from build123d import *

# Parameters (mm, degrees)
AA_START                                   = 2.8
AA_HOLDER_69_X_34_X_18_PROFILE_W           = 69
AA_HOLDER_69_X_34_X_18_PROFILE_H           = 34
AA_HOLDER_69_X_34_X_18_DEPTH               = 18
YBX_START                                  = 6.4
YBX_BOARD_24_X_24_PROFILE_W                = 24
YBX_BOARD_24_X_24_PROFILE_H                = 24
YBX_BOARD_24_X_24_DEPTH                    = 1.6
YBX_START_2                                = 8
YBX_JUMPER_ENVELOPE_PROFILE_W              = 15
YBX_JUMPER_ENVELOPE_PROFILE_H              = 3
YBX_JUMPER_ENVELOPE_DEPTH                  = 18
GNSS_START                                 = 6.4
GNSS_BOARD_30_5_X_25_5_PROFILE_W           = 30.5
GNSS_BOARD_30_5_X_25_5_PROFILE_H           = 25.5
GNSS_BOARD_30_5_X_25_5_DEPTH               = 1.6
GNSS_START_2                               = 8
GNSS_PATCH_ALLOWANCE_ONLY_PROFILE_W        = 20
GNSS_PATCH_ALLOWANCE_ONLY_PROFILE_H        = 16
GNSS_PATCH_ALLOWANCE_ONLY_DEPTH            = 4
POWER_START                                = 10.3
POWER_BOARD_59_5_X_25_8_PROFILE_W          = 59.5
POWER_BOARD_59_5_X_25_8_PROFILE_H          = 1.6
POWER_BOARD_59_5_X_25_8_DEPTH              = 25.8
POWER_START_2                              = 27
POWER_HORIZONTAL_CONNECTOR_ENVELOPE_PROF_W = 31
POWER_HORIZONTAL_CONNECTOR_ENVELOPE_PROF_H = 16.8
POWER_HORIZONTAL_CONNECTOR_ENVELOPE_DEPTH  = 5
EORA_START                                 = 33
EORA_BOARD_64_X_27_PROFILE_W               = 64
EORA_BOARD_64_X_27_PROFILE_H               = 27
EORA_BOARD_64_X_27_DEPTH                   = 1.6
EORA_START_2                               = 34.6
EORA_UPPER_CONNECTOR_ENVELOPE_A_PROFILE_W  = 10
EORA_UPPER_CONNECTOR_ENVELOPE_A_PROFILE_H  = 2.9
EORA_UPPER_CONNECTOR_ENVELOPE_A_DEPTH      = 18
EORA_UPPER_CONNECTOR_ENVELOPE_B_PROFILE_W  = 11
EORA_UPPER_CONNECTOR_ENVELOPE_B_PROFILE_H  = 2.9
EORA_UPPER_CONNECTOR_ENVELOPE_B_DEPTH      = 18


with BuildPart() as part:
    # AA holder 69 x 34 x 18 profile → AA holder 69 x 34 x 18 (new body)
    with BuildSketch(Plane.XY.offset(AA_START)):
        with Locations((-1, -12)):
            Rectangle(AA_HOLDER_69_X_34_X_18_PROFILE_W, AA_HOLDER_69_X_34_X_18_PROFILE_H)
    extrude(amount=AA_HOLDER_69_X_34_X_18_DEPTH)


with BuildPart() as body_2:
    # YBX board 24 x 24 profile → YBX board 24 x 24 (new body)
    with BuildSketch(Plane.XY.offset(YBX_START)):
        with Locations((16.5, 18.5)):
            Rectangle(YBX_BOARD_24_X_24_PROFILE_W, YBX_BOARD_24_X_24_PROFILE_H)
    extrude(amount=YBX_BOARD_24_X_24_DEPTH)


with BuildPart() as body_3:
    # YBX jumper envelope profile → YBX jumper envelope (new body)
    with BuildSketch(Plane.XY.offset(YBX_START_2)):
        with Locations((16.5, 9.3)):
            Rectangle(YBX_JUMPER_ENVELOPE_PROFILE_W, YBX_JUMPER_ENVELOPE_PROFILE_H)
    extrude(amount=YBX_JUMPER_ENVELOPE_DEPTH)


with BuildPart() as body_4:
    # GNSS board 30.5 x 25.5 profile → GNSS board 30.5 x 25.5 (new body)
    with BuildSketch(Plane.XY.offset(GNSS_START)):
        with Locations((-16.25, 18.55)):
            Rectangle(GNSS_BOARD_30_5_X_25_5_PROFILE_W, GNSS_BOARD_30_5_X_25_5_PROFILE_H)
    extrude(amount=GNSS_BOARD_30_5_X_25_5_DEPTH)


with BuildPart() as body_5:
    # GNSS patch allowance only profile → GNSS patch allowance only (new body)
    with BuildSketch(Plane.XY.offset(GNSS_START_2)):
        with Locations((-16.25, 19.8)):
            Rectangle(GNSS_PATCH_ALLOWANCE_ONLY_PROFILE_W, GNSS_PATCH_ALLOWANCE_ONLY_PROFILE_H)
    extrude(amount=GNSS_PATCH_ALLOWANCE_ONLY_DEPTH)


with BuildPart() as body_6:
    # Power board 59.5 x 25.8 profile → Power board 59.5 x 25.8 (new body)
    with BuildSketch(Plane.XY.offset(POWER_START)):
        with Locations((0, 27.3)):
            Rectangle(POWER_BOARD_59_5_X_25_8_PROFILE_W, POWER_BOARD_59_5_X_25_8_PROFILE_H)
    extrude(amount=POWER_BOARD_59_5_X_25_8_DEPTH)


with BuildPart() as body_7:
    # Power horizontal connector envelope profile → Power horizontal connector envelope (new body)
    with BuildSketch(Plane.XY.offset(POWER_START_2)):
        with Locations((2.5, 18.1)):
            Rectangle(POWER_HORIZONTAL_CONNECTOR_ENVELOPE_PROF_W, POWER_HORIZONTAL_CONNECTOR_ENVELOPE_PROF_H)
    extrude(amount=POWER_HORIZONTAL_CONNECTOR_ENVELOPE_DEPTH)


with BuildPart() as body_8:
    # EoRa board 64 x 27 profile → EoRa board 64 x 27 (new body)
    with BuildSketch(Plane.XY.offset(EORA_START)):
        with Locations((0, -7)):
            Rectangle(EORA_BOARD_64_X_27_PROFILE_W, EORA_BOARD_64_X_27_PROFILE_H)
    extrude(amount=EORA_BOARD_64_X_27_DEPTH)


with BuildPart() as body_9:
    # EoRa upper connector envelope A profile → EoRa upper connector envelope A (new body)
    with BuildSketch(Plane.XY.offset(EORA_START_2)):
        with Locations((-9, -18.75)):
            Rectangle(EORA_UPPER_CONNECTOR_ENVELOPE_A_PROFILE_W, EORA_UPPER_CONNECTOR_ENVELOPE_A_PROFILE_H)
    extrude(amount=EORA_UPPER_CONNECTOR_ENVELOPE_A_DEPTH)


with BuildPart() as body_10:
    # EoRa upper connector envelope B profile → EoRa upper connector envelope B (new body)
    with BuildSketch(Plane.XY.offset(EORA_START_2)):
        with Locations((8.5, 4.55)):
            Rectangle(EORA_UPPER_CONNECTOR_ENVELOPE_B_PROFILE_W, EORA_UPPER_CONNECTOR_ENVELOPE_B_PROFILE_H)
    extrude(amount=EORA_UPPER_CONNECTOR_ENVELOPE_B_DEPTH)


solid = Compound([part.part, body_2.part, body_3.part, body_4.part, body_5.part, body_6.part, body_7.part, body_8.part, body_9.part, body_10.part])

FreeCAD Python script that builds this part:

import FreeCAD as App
import Part
import Sketcher
Q = App.Units.Quantity

doc = App.newDocument("Part")
body = doc.addObject("PartDesign::Body", "Body")

# Sketch on XY plane
sketch1 = body.newObject("Sketcher::SketchObject", "Sketch")
sketch1.AttachmentSupport = (doc.getObject("XY_Plane"), [""])
sketch1.MapMode = "FlatFace"
sketch1.AttachmentOffset = App.Placement(App.Vector(0, 0, 2.8), App.Rotation())
sketch1.addGeometry(Part.LineSegment(App.Vector(-36, 5, 0), App.Vector(-36, -29, 0)), False)
sketch1.addGeometry(Part.LineSegment(App.Vector(-36, -29, 0), App.Vector(34, -29, 0)), False)
sketch1.addGeometry(Part.LineSegment(App.Vector(34, -29, 0), App.Vector(34, 5, 0)), False)
sketch1.addGeometry(Part.LineSegment(App.Vector(34, 5, 0), App.Vector(-36, 5, 0)), False)
sketch1.addConstraint(Sketcher.Constraint("Coincident", 0, 2, 1, 1))
sketch1.addConstraint(Sketcher.Constraint("Coincident", 1, 2, 2, 1))
sketch1.addConstraint(Sketcher.Constraint("Coincident", 2, 2, 3, 1))
sketch1.addConstraint(Sketcher.Constraint("Coincident", 3, 2, 0, 1))
sketch1.addConstraint(Sketcher.Constraint("Vertical", 0))
sketch1.addConstraint(Sketcher.Constraint("Horizontal", 1))
sketch1.addConstraint(Sketcher.Constraint("Vertical", 2))
sketch1.addConstraint(Sketcher.Constraint("Horizontal", 3))
sketch1.addConstraint(Sketcher.Constraint("DistanceX", 1, 1, 1, 2, Q("69 mm")))
sketch1.addConstraint(Sketcher.Constraint("DistanceY", 0, 2, 0, 1, Q("34 mm")))
sketch1.addConstraint(Sketcher.Constraint("DistanceY", 0, 2, -1, 1, Q("29 mm")))
sketch1.addConstraint(Sketcher.Constraint("DistanceX", 0, 2, -1, 1, Q("35.5 mm")))
pad1 = body.newObject("PartDesign::Pad", "Pad")
pad1.Profile = sketch1
pad1.Length = 18
body2 = doc.addObject("PartDesign::Body", "Body001")

# Sketch on XY plane
sketch2 = body2.newObject("Sketcher::SketchObject", "Sketch001")
sketch2.AttachmentSupport = (doc.getObject("XY_Plane001"), [""])
sketch2.MapMode = "FlatFace"
sketch2.AttachmentOffset = App.Placement(App.Vector(0, 0, 6.4), App.Rotation())
sketch2.addGeometry(Part.LineSegment(App.Vector(4, 30, 0), App.Vector(4, 6, 0)), False)
sketch2.addGeometry(Part.LineSegment(App.Vector(4, 6, 0), App.Vector(28, 6, 0)), False)
sketch2.addGeometry(Part.LineSegment(App.Vector(28, 6, 0), App.Vector(28, 30, 0)), False)
sketch2.addGeometry(Part.LineSegment(App.Vector(28, 30, 0), App.Vector(4, 30, 0)), False)
sketch2.addConstraint(Sketcher.Constraint("Coincident", 0, 2, 1, 1))
sketch2.addConstraint(Sketcher.Constraint("Coincident", 1, 2, 2, 1))
sketch2.addConstraint(Sketcher.Constraint("Coincident", 2, 2, 3, 1))
sketch2.addConstraint(Sketcher.Constraint("Coincident", 3, 2, 0, 1))
sketch2.addConstraint(Sketcher.Constraint("Vertical", 0))
sketch2.addConstraint(Sketcher.Constraint("Horizontal", 1))
sketch2.addConstraint(Sketcher.Constraint("Vertical", 2))
sketch2.addConstraint(Sketcher.Constraint("Horizontal", 3))
sketch2.addConstraint(Sketcher.Constraint("Equal", 3, 0))
sketch2.addConstraint(Sketcher.Constraint("DistanceX", 1, 1, 1, 2, Q("24 mm")))
sketch2.addConstraint(Sketcher.Constraint("DistanceX", -1, 1, 0, 2, Q("4.5 mm")))
sketch2.addConstraint(Sketcher.Constraint("DistanceY", -1, 1, 0, 2, Q("6.5 mm")))
pad2 = body2.newObject("PartDesign::Pad", "Pad001")
pad2.Profile = sketch2
pad2.Length = 1.6
body3 = doc.addObject("PartDesign::Body", "Body002")

# Sketch on XY plane
sketch3 = body3.newObject("Sketcher::SketchObject", "Sketch002")
sketch3.AttachmentSupport = (doc.getObject("XY_Plane002"), [""])
sketch3.MapMode = "FlatFace"
sketch3.AttachmentOffset = App.Placement(App.Vector(0, 0, 8), App.Rotation())
sketch3.addGeometry(Part.LineSegment(App.Vector(9, 10.8, 0), App.Vector(9, 7.8, 0)), False)
sketch3.addGeometry(Part.LineSegment(App.Vector(9, 7.8, 0), App.Vector(24, 7.8, 0)), False)
sketch3.addGeometry(Part.LineSegment(App.Vector(24, 7.8, 0), App.Vector(24, 10.8, 0)), False)
sketch3.addGeometry(Part.LineSegment(App.Vector(24, 10.8, 0), App.Vector(9, 10.8, 0)), False)
sketch3.addConstraint(Sketcher.Constraint("Coincident", 0, 2, 1, 1))
sketch3.addConstraint(Sketcher.Constraint("Coincident", 1, 2, 2, 1))
sketch3.addConstraint(Sketcher.Constraint("Coincident", 2, 2, 3, 1))
sketch3.addConstraint(Sketcher.Constraint("Coincident", 3, 2, 0, 1))
sketch3.addConstraint(Sketcher.Constraint("Vertical", 0))
sketch3.addConstraint(Sketcher.Constraint("Horizontal", 1))
sketch3.addConstraint(Sketcher.Constraint("Vertical", 2))
sketch3.addConstraint(Sketcher.Constraint("Horizontal", 3))
sketch3.addConstraint(Sketcher.Constraint("DistanceX", 1, 1, 1, 2, Q("15 mm")))
sketch3.addConstraint(Sketcher.Constraint("DistanceY", 0, 2, 0, 1, Q("3 mm")))
sketch3.addConstraint(Sketcher.Constraint("DistanceX", -1, 1, 0, 2, Q("9 mm")))
sketch3.addConstraint(Sketcher.Constraint("DistanceY", -1, 1, 0, 2, Q("7.8 mm")))
pad3 = body3.newObject("PartDesign::Pad", "Pad002")
pad3.Profile = sketch3
pad3.Length = 18
body4 = doc.addObject("PartDesign::Body", "Body003")

# Sketch on XY plane
sketch4 = body4.newObject("Sketcher::SketchObject", "Sketch003")
sketch4.AttachmentSupport = (doc.getObject("XY_Plane003"), [""])
sketch4.MapMode = "FlatFace"
sketch4.AttachmentOffset = App.Placement(App.Vector(0, 0, 6.4), App.Rotation())
sketch4.addGeometry(Part.LineSegment(App.Vector(-32, 31, 0), App.Vector(-32, 6, 0)), False)
sketch4.addGeometry(Part.LineSegment(App.Vector(-32, 6, 0), App.Vector(-1, 6, 0)), False)
sketch4.addGeometry(Part.LineSegment(App.Vector(-1, 6, 0), App.Vector(-1, 31, 0)), False)
sketch4.addGeometry(Part.LineSegment(App.Vector(-1, 31, 0), App.Vector(-32, 31, 0)), False)
sketch4.addConstraint(Sketcher.Constraint("Coincident", 0, 2, 1, 1))
sketch4.addConstraint(Sketcher.Constraint("Coincident", 1, 2, 2, 1))
sketch4.addConstraint(Sketcher.Constraint("Coincident", 2, 2, 3, 1))
sketch4.addConstraint(Sketcher.Constraint("Coincident", 3, 2, 0, 1))
sketch4.addConstraint(Sketcher.Constraint("Vertical", 0))
sketch4.addConstraint(Sketcher.Constraint("Horizontal", 1))
sketch4.addConstraint(Sketcher.Constraint("Vertical", 2))
sketch4.addConstraint(Sketcher.Constraint("Horizontal", 3))
sketch4.addConstraint(Sketcher.Constraint("DistanceX", 1, 1, 1, 2, Q("30.5 mm")))
sketch4.addConstraint(Sketcher.Constraint("DistanceY", 0, 2, 0, 1, Q("25.5 mm")))
sketch4.addConstraint(Sketcher.Constraint("DistanceX", 1, 2, -1, 1, Q("1 mm")))
sketch4.addConstraint(Sketcher.Constraint("DistanceY", -1, 1, 0, 2, Q("5.8 mm")))
pad4 = body4.newObject("PartDesign::Pad", "Pad003")
pad4.Profile = sketch4
pad4.Length = 1.6
body5 = doc.addObject("PartDesign::Body", "Body004")

# Sketch on XY plane
sketch5 = body5.newObject("Sketcher::SketchObject", "Sketch004")
sketch5.AttachmentSupport = (doc.getObject("XY_Plane004"), [""])
sketch5.MapMode = "FlatFace"
sketch5.AttachmentOffset = App.Placement(App.Vector(0, 0, 8), App.Rotation())
sketch5.addGeometry(Part.LineSegment(App.Vector(-26, 28, 0), App.Vector(-26, 12, 0)), False)
sketch5.addGeometry(Part.LineSegment(App.Vector(-26, 12, 0), App.Vector(-6, 12, 0)), False)
sketch5.addGeometry(Part.LineSegment(App.Vector(-6, 12, 0), App.Vector(-6, 28, 0)), False)
sketch5.addGeometry(Part.LineSegment(App.Vector(-6, 28, 0), App.Vector(-26, 28, 0)), False)
sketch5.addConstraint(Sketcher.Constraint("Coincident", 0, 2, 1, 1))
sketch5.addConstraint(Sketcher.Constraint("Coincident", 1, 2, 2, 1))
sketch5.addConstraint(Sketcher.Constraint("Coincident", 2, 2, 3, 1))
sketch5.addConstraint(Sketcher.Constraint("Coincident", 3, 2, 0, 1))
sketch5.addConstraint(Sketcher.Constraint("Vertical", 0))
sketch5.addConstraint(Sketcher.Constraint("Horizontal", 1))
sketch5.addConstraint(Sketcher.Constraint("Vertical", 2))
sketch5.addConstraint(Sketcher.Constraint("Horizontal", 3))
sketch5.addConstraint(Sketcher.Constraint("DistanceX", 1, 1, 1, 2, Q("20 mm")))
sketch5.addConstraint(Sketcher.Constraint("DistanceY", 0, 2, 0, 1, Q("16 mm")))
sketch5.addConstraint(Sketcher.Constraint("DistanceY", -1, 1, 0, 2, Q("11.8 mm")))
sketch5.addConstraint(Sketcher.Constraint("DistanceX", 0, 2, -1, 1, Q("26.25 mm")))
pad5 = body5.newObject("PartDesign::Pad", "Pad004")
pad5.Profile = sketch5
pad5.Length = 4
body6 = doc.addObject("PartDesign::Body", "Body005")

# Sketch on XY plane
sketch6 = body6.newObject("Sketcher::SketchObject", "Sketch005")
sketch6.AttachmentSupport = (doc.getObject("XY_Plane005"), [""])
sketch6.MapMode = "FlatFace"
sketch6.AttachmentOffset = App.Placement(App.Vector(0, 0, 10.3), App.Rotation())
sketch6.addGeometry(Part.LineSegment(App.Vector(-29.8, 28.1, 0), App.Vector(-29.8, 26.5, 0)), False)
sketch6.addGeometry(Part.LineSegment(App.Vector(-29.8, 26.5, 0), App.Vector(29.8, 26.5, 0)), False)
sketch6.addGeometry(Part.LineSegment(App.Vector(29.8, 26.5, 0), App.Vector(29.8, 28.1, 0)), False)
sketch6.addGeometry(Part.LineSegment(App.Vector(29.8, 28.1, 0), App.Vector(-29.8, 28.1, 0)), False)
sketch6.addConstraint(Sketcher.Constraint("Coincident", 0, 2, 1, 1))
sketch6.addConstraint(Sketcher.Constraint("Coincident", 1, 2, 2, 1))
sketch6.addConstraint(Sketcher.Constraint("Coincident", 2, 2, 3, 1))
sketch6.addConstraint(Sketcher.Constraint("Coincident", 3, 2, 0, 1))
sketch6.addConstraint(Sketcher.Constraint("Vertical", 0))
sketch6.addConstraint(Sketcher.Constraint("Horizontal", 1))
sketch6.addConstraint(Sketcher.Constraint("Vertical", 2))
sketch6.addConstraint(Sketcher.Constraint("Horizontal", 3))
sketch6.addConstraint(Sketcher.Constraint("DistanceX", 1, 1, 1, 2, Q("59.5 mm")))
sketch6.addConstraint(Sketcher.Constraint("DistanceY", 0, 2, 0, 1, Q("1.6 mm")))
sketch6.addConstraint(Sketcher.Constraint("DistanceY", -1, 1, 0, 2, Q("26.5 mm")))
sketch6.addConstraint(Sketcher.Constraint("DistanceX", 0, 2, -1, 1, Q("29.75 mm")))
pad6 = body6.newObject("PartDesign::Pad", "Pad005")
pad6.Profile = sketch6
pad6.Length = 25.8
body7 = doc.addObject("PartDesign::Body", "Body006")

# Sketch on XY plane
sketch7 = body7.newObject("Sketcher::SketchObject", "Sketch006")
sketch7.AttachmentSupport = (doc.getObject("XY_Plane006"), [""])
sketch7.MapMode = "FlatFace"
sketch7.AttachmentOffset = App.Placement(App.Vector(0, 0, 27), App.Rotation())
sketch7.addGeometry(Part.LineSegment(App.Vector(-13, 26, 0), App.Vector(-13, 10, 0)), False)
sketch7.addGeometry(Part.LineSegment(App.Vector(-13, 10, 0), App.Vector(18, 10, 0)), False)
sketch7.addGeometry(Part.LineSegment(App.Vector(18, 10, 0), App.Vector(18, 26, 0)), False)
sketch7.addGeometry(Part.LineSegment(App.Vector(18, 26, 0), App.Vector(-13, 26, 0)), False)
sketch7.addConstraint(Sketcher.Constraint("Coincident", 0, 2, 1, 1))
sketch7.addConstraint(Sketcher.Constraint("Coincident", 1, 2, 2, 1))
sketch7.addConstraint(Sketcher.Constraint("Coincident", 2, 2, 3, 1))
sketch7.addConstraint(Sketcher.Constraint("Coincident", 3, 2, 0, 1))
sketch7.addConstraint(Sketcher.Constraint("Vertical", 0))
sketch7.addConstraint(Sketcher.Constraint("Horizontal", 1))
sketch7.addConstraint(Sketcher.Constraint("Vertical", 2))
sketch7.addConstraint(Sketcher.Constraint("Horizontal", 3))
sketch7.addConstraint(Sketcher.Constraint("DistanceX", 1, 1, 1, 2, Q("31 mm")))
sketch7.addConstraint(Sketcher.Constraint("DistanceY", 0, 2, 0, 1, Q("16.8 mm")))
sketch7.addConstraint(Sketcher.Constraint("DistanceX", 0, 2, -1, 1, Q("13 mm")))
sketch7.addConstraint(Sketcher.Constraint("DistanceY", -1, 1, 0, 2, Q("9.7 mm")))
pad7 = body7.newObject("PartDesign::Pad", "Pad006")
pad7.Profile = sketch7
pad7.Length = 5
body8 = doc.addObject("PartDesign::Body", "Body007")

# Sketch on XY plane
sketch8 = body8.newObject("Sketcher::SketchObject", "Sketch007")
sketch8.AttachmentSupport = (doc.getObject("XY_Plane007"), [""])
sketch8.MapMode = "FlatFace"
sketch8.AttachmentOffset = App.Placement(App.Vector(0, 0, 33), App.Rotation())
sketch8.addGeometry(Part.LineSegment(App.Vector(-32, 6, 0), App.Vector(-32, -20, 0)), False)
sketch8.addGeometry(Part.LineSegment(App.Vector(-32, -20, 0), App.Vector(32, -20, 0)), False)
sketch8.addGeometry(Part.LineSegment(App.Vector(32, -20, 0), App.Vector(32, 6, 0)), False)
sketch8.addGeometry(Part.LineSegment(App.Vector(32, 6, 0), App.Vector(-32, 6, 0)), False)
sketch8.addConstraint(Sketcher.Constraint("Coincident", 0, 2, 1, 1))
sketch8.addConstraint(Sketcher.Constraint("Coincident", 1, 2, 2, 1))
sketch8.addConstraint(Sketcher.Constraint("Coincident", 2, 2, 3, 1))
sketch8.addConstraint(Sketcher.Constraint("Coincident", 3, 2, 0, 1))
sketch8.addConstraint(Sketcher.Constraint("Vertical", 0))
sketch8.addConstraint(Sketcher.Constraint("Horizontal", 1))
sketch8.addConstraint(Sketcher.Constraint("Vertical", 2))
sketch8.addConstraint(Sketcher.Constraint("Horizontal", 3))
sketch8.addConstraint(Sketcher.Constraint("DistanceX", 1, 1, 1, 2, Q("64 mm")))
sketch8.addConstraint(Sketcher.Constraint("DistanceY", 0, 2, 0, 1, Q("27 mm")))
sketch8.addConstraint(Sketcher.Constraint("DistanceX", 0, 2, -1, 1, Q("32 mm")))
sketch8.addConstraint(Sketcher.Constraint("DistanceY", 0, 2, -1, 1, Q("20.5 mm")))
pad8 = body8.newObject("PartDesign::Pad", "Pad007")
pad8.Profile = sketch8
pad8.Length = 1.6
body9 = doc.addObject("PartDesign::Body", "Body008")

# Sketch on XY plane
sketch9 = body9.newObject("Sketcher::SketchObject", "Sketch008")
sketch9.AttachmentSupport = (doc.getObject("XY_Plane008"), [""])
sketch9.MapMode = "FlatFace"
sketch9.AttachmentOffset = App.Placement(App.Vector(0, 0, 34.6), App.Rotation())
sketch9.addGeometry(Part.LineSegment(App.Vector(-14, -17.3, 0), App.Vector(-14, -20.2, 0)), False)
sketch9.addGeometry(Part.LineSegment(App.Vector(-14, -20.2, 0), App.Vector(-4, -20.2, 0)), False)
sketch9.addGeometry(Part.LineSegment(App.Vector(-4, -20.2, 0), App.Vector(-4, -17.3, 0)), False)
sketch9.addGeometry(Part.LineSegment(App.Vector(-4, -17.3, 0), App.Vector(-14, -17.3, 0)), False)
sketch9.addConstraint(Sketcher.Constraint("Coincident", 0, 2, 1, 1))
sketch9.addConstraint(Sketcher.Constraint("Coincident", 1, 2, 2, 1))
sketch9.addConstraint(Sketcher.Constraint("Coincident", 2, 2, 3, 1))
sketch9.addConstraint(Sketcher.Constraint("Coincident", 3, 2, 0, 1))
sketch9.addConstraint(Sketcher.Constraint("Vertical", 0))
sketch9.addConstraint(Sketcher.Constraint("Horizontal", 1))
sketch9.addConstraint(Sketcher.Constraint("Vertical", 2))
sketch9.addConstraint(Sketcher.Constraint("Horizontal", 3))
sketch9.addConstraint(Sketcher.Constraint("DistanceX", 1, 1, 1, 2, Q("10 mm")))
sketch9.addConstraint(Sketcher.Constraint("DistanceY", 0, 2, 0, 1, Q("2.9 mm")))
sketch9.addConstraint(Sketcher.Constraint("DistanceX", 0, 2, -1, 1, Q("14 mm")))
sketch9.addConstraint(Sketcher.Constraint("DistanceY", 0, 2, -1, 1, Q("20.2 mm")))
pad9 = body9.newObject("PartDesign::Pad", "Pad008")
pad9.Profile = sketch9
pad9.Length = 18
body10 = doc.addObject("PartDesign::Body", "Body009")

# Sketch on XY plane
sketch10 = body10.newObject("Sketcher::SketchObject", "Sketch009")
sketch10.AttachmentSupport = (doc.getObject("XY_Plane009"), [""])
sketch10.MapMode = "FlatFace"
sketch10.AttachmentOffset = App.Placement(App.Vector(0, 0, 34.6), App.Rotation())
sketch10.addGeometry(Part.LineSegment(App.Vector(3, 6, 0), App.Vector(3, 3.1, 0)), False)
sketch10.addGeometry(Part.LineSegment(App.Vector(3, 3.1, 0), App.Vector(14, 3.1, 0)), False)
sketch10.addGeometry(Part.LineSegment(App.Vector(14, 3.1, 0), App.Vector(14, 6, 0)), False)
sketch10.addGeometry(Part.LineSegment(App.Vector(14, 6, 0), App.Vector(3, 6, 0)), False)
sketch10.addConstraint(Sketcher.Constraint("Coincident", 0, 2, 1, 1))
sketch10.addConstraint(Sketcher.Constraint("Coincident", 1, 2, 2, 1))
sketch10.addConstraint(Sketcher.Constraint("Coincident", 2, 2, 3, 1))
sketch10.addConstraint(Sketcher.Constraint("Coincident", 3, 2, 0, 1))
sketch10.addConstraint(Sketcher.Constraint("Vertical", 0))
sketch10.addConstraint(Sketcher.Constraint("Horizontal", 1))
sketch10.addConstraint(Sketcher.Constraint("Vertical", 2))
sketch10.addConstraint(Sketcher.Constraint("Horizontal", 3))
sketch10.addConstraint(Sketcher.Constraint("DistanceX", 1, 1, 1, 2, Q("11 mm")))
sketch10.addConstraint(Sketcher.Constraint("DistanceY", 0, 2, 0, 1, Q("2.9 mm")))
sketch10.addConstraint(Sketcher.Constraint("DistanceX", -1, 1, 0, 2, Q("3 mm")))
sketch10.addConstraint(Sketcher.Constraint("DistanceY", -1, 1, 2, 2, Q("6 mm")))
pad10 = body10.newObject("PartDesign::Pad", "Pad009")
pad10.Profile = sketch10
pad10.Length = 18

doc.recompute()
